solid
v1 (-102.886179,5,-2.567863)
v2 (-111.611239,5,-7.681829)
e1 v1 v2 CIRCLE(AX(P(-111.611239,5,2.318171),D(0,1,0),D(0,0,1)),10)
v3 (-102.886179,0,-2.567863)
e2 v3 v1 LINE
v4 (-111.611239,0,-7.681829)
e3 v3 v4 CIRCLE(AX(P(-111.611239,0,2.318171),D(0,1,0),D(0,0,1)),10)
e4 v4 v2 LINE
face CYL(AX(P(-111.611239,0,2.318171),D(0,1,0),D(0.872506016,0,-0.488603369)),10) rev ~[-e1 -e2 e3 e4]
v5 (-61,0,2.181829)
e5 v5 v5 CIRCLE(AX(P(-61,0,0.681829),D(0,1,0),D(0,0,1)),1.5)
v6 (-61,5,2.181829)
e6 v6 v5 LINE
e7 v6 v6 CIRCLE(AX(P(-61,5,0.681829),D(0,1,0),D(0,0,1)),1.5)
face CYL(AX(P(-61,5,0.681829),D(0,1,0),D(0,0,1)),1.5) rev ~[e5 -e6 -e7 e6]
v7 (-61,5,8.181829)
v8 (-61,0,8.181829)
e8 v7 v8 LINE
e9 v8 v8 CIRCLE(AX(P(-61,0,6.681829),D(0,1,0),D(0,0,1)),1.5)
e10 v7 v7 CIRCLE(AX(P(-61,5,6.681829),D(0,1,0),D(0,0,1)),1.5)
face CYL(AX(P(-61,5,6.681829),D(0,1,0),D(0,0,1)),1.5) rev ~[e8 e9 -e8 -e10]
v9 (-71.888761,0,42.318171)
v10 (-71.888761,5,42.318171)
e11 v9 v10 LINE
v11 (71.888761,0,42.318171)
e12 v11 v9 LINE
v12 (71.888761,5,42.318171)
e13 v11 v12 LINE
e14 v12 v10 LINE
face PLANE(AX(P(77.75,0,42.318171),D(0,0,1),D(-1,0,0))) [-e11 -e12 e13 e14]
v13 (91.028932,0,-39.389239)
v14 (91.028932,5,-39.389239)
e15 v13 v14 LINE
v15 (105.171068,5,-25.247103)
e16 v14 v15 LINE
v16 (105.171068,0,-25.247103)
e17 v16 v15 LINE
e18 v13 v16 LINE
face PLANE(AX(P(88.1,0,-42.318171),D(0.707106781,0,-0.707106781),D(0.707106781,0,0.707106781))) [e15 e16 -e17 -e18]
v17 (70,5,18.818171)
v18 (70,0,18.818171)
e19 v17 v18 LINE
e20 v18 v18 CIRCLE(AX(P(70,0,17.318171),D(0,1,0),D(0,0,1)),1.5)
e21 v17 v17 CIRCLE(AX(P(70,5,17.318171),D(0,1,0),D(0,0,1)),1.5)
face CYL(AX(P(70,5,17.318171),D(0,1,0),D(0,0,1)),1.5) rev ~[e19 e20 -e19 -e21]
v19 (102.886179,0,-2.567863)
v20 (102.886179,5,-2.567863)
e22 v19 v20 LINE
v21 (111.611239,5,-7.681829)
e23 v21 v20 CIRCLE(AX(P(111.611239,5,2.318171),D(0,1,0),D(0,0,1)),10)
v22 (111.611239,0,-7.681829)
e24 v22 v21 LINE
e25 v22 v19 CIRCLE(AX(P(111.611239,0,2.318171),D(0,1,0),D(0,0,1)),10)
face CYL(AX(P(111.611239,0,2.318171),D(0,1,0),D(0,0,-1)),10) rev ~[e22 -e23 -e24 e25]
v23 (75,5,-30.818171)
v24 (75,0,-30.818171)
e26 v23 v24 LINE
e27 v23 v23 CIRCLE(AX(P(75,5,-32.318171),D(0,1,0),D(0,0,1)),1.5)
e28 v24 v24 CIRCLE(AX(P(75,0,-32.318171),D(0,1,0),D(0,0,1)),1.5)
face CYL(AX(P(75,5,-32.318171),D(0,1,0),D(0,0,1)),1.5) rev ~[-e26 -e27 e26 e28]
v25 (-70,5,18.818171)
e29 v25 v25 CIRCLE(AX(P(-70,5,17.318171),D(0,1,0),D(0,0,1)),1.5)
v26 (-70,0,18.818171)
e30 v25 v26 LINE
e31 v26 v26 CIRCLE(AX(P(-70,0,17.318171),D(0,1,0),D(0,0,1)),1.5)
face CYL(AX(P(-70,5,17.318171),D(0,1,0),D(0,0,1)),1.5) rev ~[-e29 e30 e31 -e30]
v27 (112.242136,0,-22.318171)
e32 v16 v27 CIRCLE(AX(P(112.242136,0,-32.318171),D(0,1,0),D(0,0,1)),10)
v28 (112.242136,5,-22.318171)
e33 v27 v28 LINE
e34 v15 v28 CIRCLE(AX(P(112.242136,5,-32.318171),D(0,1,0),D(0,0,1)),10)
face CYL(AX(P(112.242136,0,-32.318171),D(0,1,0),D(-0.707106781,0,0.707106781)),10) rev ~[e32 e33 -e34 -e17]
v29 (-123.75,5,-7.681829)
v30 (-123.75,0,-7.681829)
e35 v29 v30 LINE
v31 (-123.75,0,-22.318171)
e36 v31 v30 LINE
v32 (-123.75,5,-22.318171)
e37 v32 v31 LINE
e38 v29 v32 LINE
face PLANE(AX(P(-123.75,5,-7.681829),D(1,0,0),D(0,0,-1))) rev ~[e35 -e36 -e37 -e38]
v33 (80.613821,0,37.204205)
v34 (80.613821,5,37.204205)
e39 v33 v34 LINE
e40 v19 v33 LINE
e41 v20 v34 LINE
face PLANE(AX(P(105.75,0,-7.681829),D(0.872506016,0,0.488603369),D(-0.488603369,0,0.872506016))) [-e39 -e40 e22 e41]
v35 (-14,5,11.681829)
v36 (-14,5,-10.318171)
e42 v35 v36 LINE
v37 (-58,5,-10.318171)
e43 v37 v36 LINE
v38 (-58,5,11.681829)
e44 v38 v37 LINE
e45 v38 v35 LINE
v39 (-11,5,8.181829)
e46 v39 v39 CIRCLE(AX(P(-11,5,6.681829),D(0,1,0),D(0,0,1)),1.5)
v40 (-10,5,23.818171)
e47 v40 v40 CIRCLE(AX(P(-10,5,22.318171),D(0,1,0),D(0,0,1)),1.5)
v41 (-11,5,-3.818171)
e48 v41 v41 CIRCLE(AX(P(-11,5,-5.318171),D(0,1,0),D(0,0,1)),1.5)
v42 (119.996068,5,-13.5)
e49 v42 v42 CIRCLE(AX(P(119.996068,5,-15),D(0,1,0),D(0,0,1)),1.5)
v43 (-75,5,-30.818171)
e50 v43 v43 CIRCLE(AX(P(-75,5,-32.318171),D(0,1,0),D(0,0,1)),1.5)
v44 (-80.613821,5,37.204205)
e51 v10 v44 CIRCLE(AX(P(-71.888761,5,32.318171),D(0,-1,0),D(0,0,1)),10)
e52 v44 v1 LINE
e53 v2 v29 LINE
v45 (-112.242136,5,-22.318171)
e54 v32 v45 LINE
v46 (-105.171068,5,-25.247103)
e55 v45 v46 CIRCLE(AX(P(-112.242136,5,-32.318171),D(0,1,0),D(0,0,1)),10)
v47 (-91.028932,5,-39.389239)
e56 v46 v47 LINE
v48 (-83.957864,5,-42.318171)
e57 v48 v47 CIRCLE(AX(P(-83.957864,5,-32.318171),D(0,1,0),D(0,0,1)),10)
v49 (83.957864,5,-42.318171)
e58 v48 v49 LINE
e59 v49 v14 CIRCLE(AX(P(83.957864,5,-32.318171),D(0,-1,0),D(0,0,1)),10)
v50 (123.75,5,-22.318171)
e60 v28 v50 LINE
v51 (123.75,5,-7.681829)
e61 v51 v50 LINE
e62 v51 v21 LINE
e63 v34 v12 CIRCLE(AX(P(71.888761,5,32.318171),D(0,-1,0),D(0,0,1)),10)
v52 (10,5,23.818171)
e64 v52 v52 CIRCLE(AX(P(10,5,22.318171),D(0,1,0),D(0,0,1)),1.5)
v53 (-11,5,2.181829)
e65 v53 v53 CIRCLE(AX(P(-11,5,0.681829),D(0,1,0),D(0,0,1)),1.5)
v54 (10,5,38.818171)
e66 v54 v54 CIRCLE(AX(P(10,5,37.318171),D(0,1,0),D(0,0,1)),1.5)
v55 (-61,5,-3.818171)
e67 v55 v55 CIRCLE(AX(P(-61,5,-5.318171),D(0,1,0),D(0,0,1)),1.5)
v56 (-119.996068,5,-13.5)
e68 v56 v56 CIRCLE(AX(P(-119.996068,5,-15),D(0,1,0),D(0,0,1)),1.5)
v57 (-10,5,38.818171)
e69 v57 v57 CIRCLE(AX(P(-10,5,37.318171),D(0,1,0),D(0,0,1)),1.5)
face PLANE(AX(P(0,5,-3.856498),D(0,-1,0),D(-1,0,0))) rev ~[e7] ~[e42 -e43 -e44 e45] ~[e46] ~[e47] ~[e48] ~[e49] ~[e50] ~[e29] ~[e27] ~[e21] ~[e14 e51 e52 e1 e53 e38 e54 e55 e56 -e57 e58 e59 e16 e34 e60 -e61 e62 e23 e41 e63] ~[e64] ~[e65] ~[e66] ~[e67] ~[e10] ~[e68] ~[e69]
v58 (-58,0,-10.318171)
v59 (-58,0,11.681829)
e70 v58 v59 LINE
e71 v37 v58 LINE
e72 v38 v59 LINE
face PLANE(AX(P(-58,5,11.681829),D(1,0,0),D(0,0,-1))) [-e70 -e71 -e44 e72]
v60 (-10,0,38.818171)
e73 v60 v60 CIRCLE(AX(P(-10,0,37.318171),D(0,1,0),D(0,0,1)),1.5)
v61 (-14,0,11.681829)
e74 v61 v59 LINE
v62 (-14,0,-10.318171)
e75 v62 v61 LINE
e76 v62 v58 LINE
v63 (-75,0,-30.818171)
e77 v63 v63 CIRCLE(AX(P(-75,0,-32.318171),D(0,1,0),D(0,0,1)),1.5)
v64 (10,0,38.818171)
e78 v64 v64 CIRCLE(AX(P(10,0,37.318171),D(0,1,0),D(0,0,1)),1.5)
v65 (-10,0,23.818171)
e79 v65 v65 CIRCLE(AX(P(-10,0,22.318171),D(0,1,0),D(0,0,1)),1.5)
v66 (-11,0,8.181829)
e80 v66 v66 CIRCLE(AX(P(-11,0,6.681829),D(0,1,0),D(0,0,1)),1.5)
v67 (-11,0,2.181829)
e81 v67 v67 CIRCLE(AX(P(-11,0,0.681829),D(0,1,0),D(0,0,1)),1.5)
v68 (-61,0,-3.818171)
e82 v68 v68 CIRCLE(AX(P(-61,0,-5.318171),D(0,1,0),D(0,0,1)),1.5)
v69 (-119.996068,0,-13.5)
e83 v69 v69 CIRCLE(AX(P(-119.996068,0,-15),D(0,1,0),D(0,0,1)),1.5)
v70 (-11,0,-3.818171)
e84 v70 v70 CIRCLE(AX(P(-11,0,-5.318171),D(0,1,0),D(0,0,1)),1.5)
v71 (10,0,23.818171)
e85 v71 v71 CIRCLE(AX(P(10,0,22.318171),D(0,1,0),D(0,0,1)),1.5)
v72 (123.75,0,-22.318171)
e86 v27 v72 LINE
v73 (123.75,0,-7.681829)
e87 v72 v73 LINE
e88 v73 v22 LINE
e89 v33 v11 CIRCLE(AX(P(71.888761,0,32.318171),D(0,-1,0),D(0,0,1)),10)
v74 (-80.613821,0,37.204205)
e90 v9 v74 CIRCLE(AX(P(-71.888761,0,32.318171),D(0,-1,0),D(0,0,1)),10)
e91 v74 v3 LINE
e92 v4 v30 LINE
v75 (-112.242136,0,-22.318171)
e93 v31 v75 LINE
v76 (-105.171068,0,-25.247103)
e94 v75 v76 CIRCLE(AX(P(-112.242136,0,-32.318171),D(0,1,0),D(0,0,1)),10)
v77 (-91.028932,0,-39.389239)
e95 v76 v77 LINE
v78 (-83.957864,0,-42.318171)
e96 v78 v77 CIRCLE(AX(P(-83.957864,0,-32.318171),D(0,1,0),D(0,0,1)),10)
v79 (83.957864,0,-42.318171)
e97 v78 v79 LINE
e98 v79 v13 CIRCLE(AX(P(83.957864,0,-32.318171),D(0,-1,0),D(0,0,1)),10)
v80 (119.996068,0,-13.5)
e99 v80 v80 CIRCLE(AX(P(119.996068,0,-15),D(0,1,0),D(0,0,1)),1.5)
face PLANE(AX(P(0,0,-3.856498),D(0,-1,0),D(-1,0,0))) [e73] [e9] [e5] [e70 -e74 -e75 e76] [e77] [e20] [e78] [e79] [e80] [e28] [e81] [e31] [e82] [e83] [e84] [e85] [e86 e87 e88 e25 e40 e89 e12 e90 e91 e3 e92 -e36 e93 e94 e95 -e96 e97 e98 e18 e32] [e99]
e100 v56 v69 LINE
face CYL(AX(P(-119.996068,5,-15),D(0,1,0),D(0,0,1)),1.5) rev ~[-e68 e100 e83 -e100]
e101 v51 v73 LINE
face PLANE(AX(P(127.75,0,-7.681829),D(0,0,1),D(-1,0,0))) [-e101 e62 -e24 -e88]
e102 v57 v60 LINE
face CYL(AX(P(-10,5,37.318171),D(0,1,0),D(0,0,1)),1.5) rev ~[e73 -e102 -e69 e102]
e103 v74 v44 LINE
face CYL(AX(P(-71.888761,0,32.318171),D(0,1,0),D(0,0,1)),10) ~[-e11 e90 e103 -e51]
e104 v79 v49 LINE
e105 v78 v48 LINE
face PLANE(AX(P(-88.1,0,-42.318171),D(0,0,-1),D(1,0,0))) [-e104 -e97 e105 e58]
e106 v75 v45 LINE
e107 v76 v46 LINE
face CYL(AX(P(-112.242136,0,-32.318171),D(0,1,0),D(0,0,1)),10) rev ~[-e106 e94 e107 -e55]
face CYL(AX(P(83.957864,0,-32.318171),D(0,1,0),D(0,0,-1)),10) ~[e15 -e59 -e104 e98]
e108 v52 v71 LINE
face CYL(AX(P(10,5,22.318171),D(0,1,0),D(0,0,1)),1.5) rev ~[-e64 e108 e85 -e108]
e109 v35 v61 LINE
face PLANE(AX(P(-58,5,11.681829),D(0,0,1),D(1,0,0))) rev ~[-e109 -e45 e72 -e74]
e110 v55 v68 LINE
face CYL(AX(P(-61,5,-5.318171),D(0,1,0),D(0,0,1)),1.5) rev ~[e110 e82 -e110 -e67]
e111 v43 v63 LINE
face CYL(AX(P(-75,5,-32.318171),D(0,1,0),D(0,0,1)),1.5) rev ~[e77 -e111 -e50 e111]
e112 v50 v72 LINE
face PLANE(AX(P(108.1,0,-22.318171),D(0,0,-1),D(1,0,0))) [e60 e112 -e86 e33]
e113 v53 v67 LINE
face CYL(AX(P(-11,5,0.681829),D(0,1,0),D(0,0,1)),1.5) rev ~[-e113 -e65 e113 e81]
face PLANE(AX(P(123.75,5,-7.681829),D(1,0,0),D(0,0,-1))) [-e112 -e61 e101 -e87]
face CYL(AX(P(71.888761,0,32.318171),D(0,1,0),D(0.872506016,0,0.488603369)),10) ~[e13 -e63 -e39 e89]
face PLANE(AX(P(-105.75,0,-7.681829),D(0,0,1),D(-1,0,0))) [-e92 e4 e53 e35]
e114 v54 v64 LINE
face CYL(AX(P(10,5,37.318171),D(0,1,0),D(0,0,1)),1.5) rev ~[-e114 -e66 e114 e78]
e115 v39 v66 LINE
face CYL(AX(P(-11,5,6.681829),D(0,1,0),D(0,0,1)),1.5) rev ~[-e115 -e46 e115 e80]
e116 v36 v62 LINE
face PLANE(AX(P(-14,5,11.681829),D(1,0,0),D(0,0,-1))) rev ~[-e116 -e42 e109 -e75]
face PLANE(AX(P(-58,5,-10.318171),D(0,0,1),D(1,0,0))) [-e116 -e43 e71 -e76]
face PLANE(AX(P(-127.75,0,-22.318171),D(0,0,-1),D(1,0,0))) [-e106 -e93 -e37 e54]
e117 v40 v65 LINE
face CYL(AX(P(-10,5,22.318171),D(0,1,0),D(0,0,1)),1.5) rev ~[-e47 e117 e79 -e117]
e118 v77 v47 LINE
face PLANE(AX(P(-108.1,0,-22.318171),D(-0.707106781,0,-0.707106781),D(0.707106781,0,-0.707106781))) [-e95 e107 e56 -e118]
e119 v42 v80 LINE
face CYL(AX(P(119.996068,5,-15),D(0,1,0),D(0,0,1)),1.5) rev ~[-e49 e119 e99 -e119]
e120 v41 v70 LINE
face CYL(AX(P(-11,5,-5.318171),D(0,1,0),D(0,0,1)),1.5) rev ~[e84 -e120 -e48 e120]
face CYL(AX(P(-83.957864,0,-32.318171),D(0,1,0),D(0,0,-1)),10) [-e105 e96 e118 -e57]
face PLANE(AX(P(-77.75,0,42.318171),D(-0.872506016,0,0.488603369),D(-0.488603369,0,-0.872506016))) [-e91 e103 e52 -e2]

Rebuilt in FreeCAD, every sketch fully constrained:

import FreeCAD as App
import Part
import Sketcher


def edges_at(feature, points):
    """Names of the edges that pass closest to the given points."""
    edges = feature.Shape.Edges
    near = lambda p: min(range(len(edges)), key=lambda i: edges[i].distToShape(Part.Vertex(*p))[0])
    return sorted({f"Edge{near(p) + 1}" for p in points})


def add_polygon(sketch, points):
    """Adds a closed chain of lines whose ends are joined by coincident constraints."""
    first, n = sketch.GeometryCount, len(points)
    for a, b in zip(points, points[1:] + points[:1]):
        sketch.addGeometry(Part.LineSegment(App.Vector(*a, 0), App.Vector(*b, 0)), False)
    for i in range(n):
        sketch.addConstraint(Sketcher.Constraint("Coincident", first + i, 2, first + (i + 1) % n, 1))

doc = App.newDocument("Part")
body = doc.addObject("PartDesign::Body", "Body")

# Sketch on XZ plane
sketch1 = body.newObject("Sketcher::SketchObject", "Sketch")
sketch1.AttachmentSupport = (doc.getObject("XZ_Plane"), [""])
sketch1.MapMode = "FlatFace"
add_polygon(sketch1, [(88, -42), (-88, -42), (-108, -22), (-128, -22), (-128, -8), (-106, -8), (-78, 42), (78, 42), (106, -8), (128, -8), (128, -22), (108, -22)])  # lines 0-11
sketch1.addConstraint([
    Sketcher.Constraint("Horizontal", 0),
    Sketcher.Constraint("Horizontal", 2),
    Sketcher.Constraint("Vertical", 3),
    Sketcher.Constraint("Horizontal", 4),
    Sketcher.Constraint("Horizontal", 6),
    Sketcher.Constraint("Horizontal", 8),
    Sketcher.Constraint("Vertical", 9),
    Sketcher.Constraint("Horizontal", 10),
    Sketcher.Constraint("Symmetric", 4, 2, 7, 2, -2),
    Sketcher.Constraint("Symmetric", 2, 2, 9, 2, -2),
    Sketcher.Constraint("Perpendicular", 1, 11),
    Sketcher.Constraint("Equal", 2, 10),
    Sketcher.Constraint("Equal", 5, 7),
    Sketcher.Constraint("Equal", 1, 11),
    Sketcher.Constraint("DistanceX", 4, 1, 4, 2, 22.0),
    Sketcher.Constraint("DistanceX", 0, 2, 0, 1, 176.2),
    Sketcher.Constraint("DistanceX", 6, 1, 6, 2, 155.5),
    Sketcher.Constraint("DistanceX", 1, 2, 0, 2, 20.0),
    Sketcher.Constraint("DistanceX", 4, 2, 5, 2, 28.0),
    Sketcher.Constraint("DistanceY", 4, 2, 5, 2, 50.0),
    Sketcher.Constraint("DistanceY", 3, 1, 3, 2, 14.636342),
    Sketcher.Constraint("DistanceY", 0, 2, -1, 1, 42.318171),
])
pad1 = body.newObject("PartDesign::Pad", "Pad")
pad1.Profile = sketch1
pad1.Length = 5
pad1.Reversed = True
doc.recompute()

fillet = body.newObject("PartDesign::Fillet", "Fillet")
fillet.Base = (pad1, edges_at(pad1, [
    (-88.1, 2.5, -42.318),
    (88.1, 2.5, -42.318),
    (108.1, 2.5, -22.318),
    (105.75, 2.5, -7.682),
    (77.75, 2.5, 42.318),
    (-77.75, 2.5, 42.318),
    (-105.75, 2.5, -7.682),
    (-108.1, 2.5, -22.318),
]))
fillet.Radius = 10

# Sketch on XZ plane
sketch2 = body.newObject("Sketcher::SketchObject", "Sketch001")
sketch2.AttachmentSupport = (doc.getObject("XZ_Plane"), [""])
sketch2.MapMode = "FlatFace"
sketch2.AttachmentOffset = App.Placement(App.Vector(0, 0, -5), App.Rotation())
sketch2.addGeometry(Part.Circle(App.Vector(70, 17.3, 0), App.Vector(0, 0, 1), 1.5), False)  # 0
sketch2.addGeometry(Part.Circle(App.Vector(-70, 17.3, 0), App.Vector(0, 0, 1), 1.5), False)  # 1
sketch2.addGeometry(Part.Circle(App.Vector(-120, -15, 0), App.Vector(0, 0, 1), 1.5), False)  # 2
sketch2.addGeometry(Part.Circle(App.Vector(120, -15, 0), App.Vector(0, 0, 1), 1.5), False)  # 3
sketch2.addGeometry(Part.Circle(App.Vector(-75, -32.3, 0), App.Vector(0, 0, 1), 1.5), False)  # 4
sketch2.addGeometry(Part.Circle(App.Vector(75, -32.3, 0), App.Vector(0, 0, 1), 1.5), False)  # 5
sketch2.addGeometry(Part.Circle(App.Vector(-10, 22.3, 0), App.Vector(0, 0, 1), 1.5), False)  # 6
sketch2.addGeometry(Part.Circle(App.Vector(10, 22.3, 0), App.Vector(0, 0, 1), 1.5), False)  # 7
sketch2.addGeometry(Part.Circle(App.Vector(-10, 37.3, 0), App.Vector(0, 0, 1), 1.5), False)  # 8
sketch2.addGeometry(Part.Circle(App.Vector(10, 37.3, 0), App.Vector(0, 0, 1), 1.5), False)  # 9
sketch2.addGeometry(Part.Circle(App.Vector(-61, 0.7, 0), App.Vector(0, 0, 1), 1.5), False)  # 10
sketch2.addGeometry(Part.Circle(App.Vector(-11, 0.7, 0), App.Vector(0, 0, 1), 1.5), False)  # 11
sketch2.addGeometry(Part.Circle(App.Vector(-61, -5.3, 0), App.Vector(0, 0, 1), 1.5), False)  # 12
sketch2.addGeometry(Part.Circle(App.Vector(-61, 6.7, 0), App.Vector(0, 0, 1), 1.5), False)  # 13
sketch2.addGeometry(Part.Circle(App.Vector(-11, -5.3, 0), App.Vector(0, 0, 1), 1.5), False)  # 14
sketch2.addGeometry(Part.Circle(App.Vector(-11, 6.7, 0), App.Vector(0, 0, 1), 1.5), False)  # 15
add_polygon(sketch2, [(-57, -9.3), (-57, 10.7), (-15, 10.7), (-15, -9.3)])  # lines 16-19
sketch2.addConstraint([
    Sketcher.Constraint("Vertical", 16),
    Sketcher.Constraint("Horizontal", 17),
    Sketcher.Constraint("Vertical", 18),
    Sketcher.Constraint("Horizontal", 19),
    Sketcher.Constraint("Equal", 0, 1),
    Sketcher.Constraint("Equal", 1, 2),
    Sketcher.Constraint("Equal", 2, 3),
    Sketcher.Constraint("Equal", 3, 4),
    Sketcher.Constraint("Equal", 4, 5),
    Sketcher.Constraint("Equal", 5, 6),
    Sketcher.Constraint("Equal", 6, 7),
    Sketcher.Constraint("Equal", 7, 8),
    Sketcher.Constraint("Equal", 8, 9),
    Sketcher.Constraint("Equal", 9, 10),
    Sketcher.Constraint("Equal", 10, 11),
    Sketcher.Constraint("Equal", 11, 12),
    Sketcher.Constraint("Equal", 12, 13),
    Sketcher.Constraint("Equal", 13, 14),
    Sketcher.Constraint("Equal", 14, 15),
    Sketcher.Constraint("Symmetric", 0, 3, 1, 3, -2),
    Sketcher.Constraint("Symmetric", 2, 3, 3, 3, -2),
    Sketcher.Constraint("Symmetric", 4, 3, 5, 3, -2),
    Sketcher.Constraint("Symmetric", 6, 3, 7, 3, -2),
    Sketcher.Constraint("Symmetric", 8, 3, 9, 3, -2),
    Sketcher.Constraint("Horizontal", 10, 3, 11, 3),
    Sketcher.Constraint("Horizontal", 12, 3, 14, 3),
    Sketcher.Constraint("Horizontal", 13, 3, 15, 3),
    Sketcher.Constraint("Vertical", 6, 3, 8, 3),
    Sketcher.Constraint("Vertical", 10, 3, 12, 3),
    Sketcher.Constraint("Vertical", 12, 3, 13, 3),
    Sketcher.Constraint("Vertical", 11, 3, 14, 3),
    Sketcher.Constraint("Vertical", 14, 3, 15, 3),
    Sketcher.Constraint("Diameter", 0, 3.0),
    Sketcher.Constraint("DistanceX", 17, 1, 17, 2, 42.0),
    Sketcher.Constraint("DistanceY", 16, 1, 16, 2, 20.0),
    Sketcher.Constraint("DistanceX", -1, 1, 0, 3, 70.0),
    Sketcher.Constraint("DistanceY", 2, 3, -1, 1, 15.0),
    Sketcher.Constraint("DistanceX", 4, 3, -1, 1, 75.0),
    Sketcher.Constraint("DistanceX", 6, 3, -1, 1, 10.0),
    Sketcher.Constraint("DistanceX", 10, 3, -1, 1, 61.0),
    Sketcher.Constraint("DistanceX", 11, 3, -1, 1, 11.0),
    Sketcher.Constraint("DistanceX", 16, 2, -1, 1, 57.0),
    Sketcher.Constraint("DistanceY", 1, 3, 6, 3, 5.0),
    Sketcher.Constraint("DistanceY", 6, 3, 8, 3, 15.0),
    Sketcher.Constraint("DistanceY", 4, 3, 10, 3, 33.0),
    Sketcher.Constraint("DistanceY", 12, 3, 10, 3, 6.0),
    Sketcher.Constraint("DistanceY", 10, 3, 13, 3, 6.0),
    Sketcher.Constraint("DistanceY", 13, 3, 16, 2, 4.0),
    Sketcher.Constraint("DistanceY", -1, 1, 0, 3, 17.318171),
    Sketcher.Constraint("DistanceY", 4, 3, -1, 1, 32.318171),
    Sketcher.Constraint("DistanceX", 2, 3, -1, 1, 119.996068),
])
pocket1 = body.newObject("PartDesign::Pocket", "Pocket")
pocket1.Profile = sketch2
pocket1.Type = "ThroughAll"
pocket1.Reversed = True

# Sketch on XZ plane
sketch3 = body.newObject("Sketcher::SketchObject", "Sketch002")
sketch3.AttachmentSupport = (doc.getObject("XZ_Plane"), [""])
sketch3.MapMode = "FlatFace"
sketch3.AttachmentOffset = App.Placement(App.Vector(0, 0, -5), App.Rotation())
add_polygon(sketch3, [(-127.8, -22.3), (-127.8, -7.7), (-123.8, -7.7), (-123.8, -22.3)])  # lines 0-3
add_polygon(sketch3, [(123.8, -22.3), (123.8, -7.7), (127.8, -7.7), (127.8, -22.3)])  # lines 4-7
sketch3.addConstraint([
    Sketcher.Constraint("Vertical", 0),
    Sketcher.Constraint("Horizontal", 1),
    Sketcher.Constraint("Vertical", 2),
    Sketcher.Constraint("Horizontal", 3),
    Sketcher.Constraint("Vertical", 4),
    Sketcher.Constraint("Horizontal", 5),
    Sketcher.Constraint("Vertical", 6),
    Sketcher.Constraint("Horizontal", 7),
    Sketcher.Constraint("Symmetric", 1, 2, 4, 2, -2),
    Sketcher.Constraint("Symmetric", 3, 2, 6, 2, -2),
    Sketcher.Constraint("DistanceX", 1, 1, 1, 2, 4.0),
    Sketcher.Constraint("DistanceX", 1, 2, 4, 2, 247.5),
    Sketcher.Constraint("DistanceY", 0, 1, 0, 2, 14.636342),
    Sketcher.Constraint("DistanceY", 0, 2, -1, 1, 7.681829),
])
pocket2 = body.newObject("PartDesign::Pocket", "Pocket001")
pocket2.Profile = sketch3
pocket2.Type = "ThroughAll"
pocket2.Reversed = True

# Sketch on XZ plane
sketch4 = body.newObject("Sketcher::SketchObject", "Sketch003")
sketch4.AttachmentSupport = (doc.getObject("XZ_Plane"), [""])
sketch4.MapMode = "FlatFace"
sketch4.AttachmentOffset = App.Placement(App.Vector(0, 0, -5), App.Rotation())
add_polygon(sketch4, [(-58, -10), (-58, 12), (-14, 12), (-14, -10)])  # lines 0-3
sketch4.addConstraint([
    Sketcher.Constraint("Vertical", 0),
    Sketcher.Constraint("Horizontal", 1),
    Sketcher.Constraint("Vertical", 2),
    Sketcher.Constraint("Horizontal", 3),
    Sketcher.Constraint("DistanceX", 1, 1, 1, 2, 44.0),
    Sketcher.Constraint("DistanceY", 0, 1, 0, 2, 22.0),
    Sketcher.Constraint("DistanceX", 0, 2, -1, 1, 58.0),
    Sketcher.Constraint("DistanceY", -1, 1, 0, 2, 11.681829),
])
pocket3 = body.newObject("PartDesign::Pocket", "Pocket002")
pocket3.Profile = sketch4
pocket3.Type = "ThroughAll"
pocket3.Reversed = True

doc.recompute()
